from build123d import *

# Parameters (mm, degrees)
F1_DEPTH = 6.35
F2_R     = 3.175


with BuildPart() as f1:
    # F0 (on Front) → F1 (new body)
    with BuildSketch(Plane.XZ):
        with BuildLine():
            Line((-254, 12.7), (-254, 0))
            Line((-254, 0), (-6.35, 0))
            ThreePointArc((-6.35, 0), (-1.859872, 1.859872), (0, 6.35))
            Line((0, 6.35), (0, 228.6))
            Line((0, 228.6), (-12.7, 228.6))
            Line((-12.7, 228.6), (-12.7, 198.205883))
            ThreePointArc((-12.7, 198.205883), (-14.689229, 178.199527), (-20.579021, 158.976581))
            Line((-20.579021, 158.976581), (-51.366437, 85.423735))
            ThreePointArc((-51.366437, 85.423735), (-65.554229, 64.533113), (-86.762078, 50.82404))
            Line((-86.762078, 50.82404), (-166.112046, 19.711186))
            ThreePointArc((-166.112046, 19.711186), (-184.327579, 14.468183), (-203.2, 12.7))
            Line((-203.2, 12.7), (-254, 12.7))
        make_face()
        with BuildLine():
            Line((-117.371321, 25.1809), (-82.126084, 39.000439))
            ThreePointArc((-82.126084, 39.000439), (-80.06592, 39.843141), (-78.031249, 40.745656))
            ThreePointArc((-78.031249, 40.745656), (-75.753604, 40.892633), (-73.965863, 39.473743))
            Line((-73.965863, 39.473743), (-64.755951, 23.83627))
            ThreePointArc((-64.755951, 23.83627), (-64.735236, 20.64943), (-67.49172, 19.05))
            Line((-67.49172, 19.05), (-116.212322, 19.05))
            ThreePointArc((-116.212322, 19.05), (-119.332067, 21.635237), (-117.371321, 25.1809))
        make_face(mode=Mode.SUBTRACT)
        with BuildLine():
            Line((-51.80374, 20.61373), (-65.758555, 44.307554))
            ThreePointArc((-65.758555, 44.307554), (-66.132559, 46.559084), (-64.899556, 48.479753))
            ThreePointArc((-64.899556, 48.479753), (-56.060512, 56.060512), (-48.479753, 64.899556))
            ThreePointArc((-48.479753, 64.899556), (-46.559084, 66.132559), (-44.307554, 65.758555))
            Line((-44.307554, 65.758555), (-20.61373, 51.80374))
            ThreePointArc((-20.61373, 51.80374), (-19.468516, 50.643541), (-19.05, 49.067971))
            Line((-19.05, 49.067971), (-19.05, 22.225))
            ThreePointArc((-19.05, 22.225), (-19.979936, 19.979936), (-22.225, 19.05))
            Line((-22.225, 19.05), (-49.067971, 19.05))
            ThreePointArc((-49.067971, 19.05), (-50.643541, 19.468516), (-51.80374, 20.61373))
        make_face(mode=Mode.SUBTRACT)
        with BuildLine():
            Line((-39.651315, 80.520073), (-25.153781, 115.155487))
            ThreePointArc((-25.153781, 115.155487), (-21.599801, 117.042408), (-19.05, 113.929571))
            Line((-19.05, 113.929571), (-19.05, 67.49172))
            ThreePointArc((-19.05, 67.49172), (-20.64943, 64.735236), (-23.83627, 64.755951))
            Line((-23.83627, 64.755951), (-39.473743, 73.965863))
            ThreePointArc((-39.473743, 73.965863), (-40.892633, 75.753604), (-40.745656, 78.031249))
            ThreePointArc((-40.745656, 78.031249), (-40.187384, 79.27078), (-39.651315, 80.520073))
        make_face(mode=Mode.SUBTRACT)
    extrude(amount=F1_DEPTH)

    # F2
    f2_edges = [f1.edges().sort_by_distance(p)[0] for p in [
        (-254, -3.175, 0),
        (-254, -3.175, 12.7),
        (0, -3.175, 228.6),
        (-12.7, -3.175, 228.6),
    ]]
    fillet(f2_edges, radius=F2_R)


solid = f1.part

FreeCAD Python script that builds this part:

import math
import FreeCAD as App
import Part
import Sketcher

V = App.Vector
Q = App.Units.Quantity


def edges_at(feature, points):
    """Names of the edges that pass closest to the given points."""
    edges = feature.Shape.Edges
    near = lambda p: min(range(len(edges)), key=lambda i: edges[i].distToShape(Part.Vertex(*p))[0])
    return sorted({f"Edge{near(p) + 1}" for p in points})

doc = App.newDocument("Part")
body = doc.addObject("PartDesign::Body", "Body")

sketch1 = doc.addObject("Sketcher::SketchObject", "Sketch")
body.addObject(sketch1)
sketch1.AttachmentSupport = (doc.XZ_Plane, [""])
sketch1.MapMode = "FlatFace"
sketch1.addGeometry(Part.LineSegment(V(-254, 12.7, 0), V(-254, 0, 0)), False)
sketch1.addGeometry(Part.LineSegment(V(-254, 0, 0), V(-6.35, 0, 0)), False)
sketch1.addGeometry(Part.ArcOfCircle(Part.Circle(V(-6.35, 6.35, 0), V(0, 0, 1), 6.35), math.radians(-89.999998), math.radians(-0.000002)), False)
sketch1.addGeometry(Part.LineSegment(V(0, 6.35, 0), V(0, 228.6, 0)), False)
sketch1.addGeometry(Part.LineSegment(V(0, 228.6, 0), V(-12.7, 228.6, 0)), False)
sketch1.addGeometry(Part.LineSegment(V(-12.7, 228.6, 0), V(-12.7, 198.205883, 0)), False)
sketch1.addGeometry(Part.ArcOfCircle(Part.Circle(V(-114.30001, 198.205885, 0), V(0, 0, 1), 101.60001), math.radians(-22.712988), math.radians(-0.000001)), False)
sketch1.addGeometry(Part.LineSegment(V(-20.579021, 158.976581, 0), V(-51.366437, 85.423735, 0)), False)
sketch1.addGeometry(Part.ArcOfCircle(Part.Circle(V(-109.94205, 109.94205, 0), V(0, 0, 1), 63.500001), math.radians(-68.590022), math.radians(-22.71299)), False)
sketch1.addGeometry(Part.LineSegment(V(-86.762078, 50.82404, 0), V(-166.112046, 19.711186, 0)), False)
sketch1.addGeometry(Part.ArcOfCircle(Part.Circle(V(-203.200003, 114.30002, 0), V(0, 0, 1), 101.60002), math.radians(-89.999998), math.radians(-68.590025)), False)
sketch1.addGeometry(Part.LineSegment(V(-203.2, 12.7, 0), V(-254, 12.7, 0)), False)
sketch1.addGeometry(Part.ArcOfCircle(Part.Circle(V(-116.212323, 22.225, 0), V(0, 0, 1), 3.175), math.radians(111.40997), math.radians(270.000017)), False)
sketch1.addGeometry(Part.LineSegment(V(-117.371321, 25.1809, 0), V(-82.126084, 39.000439, 0)), False)
sketch1.addGeometry(Part.ArcOfCircle(Part.Circle(V(-109.941822, 109.941523, 0), V(0, 0, 1), 76.199427), math.radians(-68.590037), math.radians(-65.242597)), False)
sketch1.addGeometry(Part.ArcOfCircle(Part.Circle(V(-76.701632, 37.862474, 0), V(0, 0, 1), 3.174999), math.radians(30.49654), math.radians(114.757412)), False)
sketch1.addGeometry(Part.LineSegment(V(-73.965863, 39.473743, 0), V(-64.755951, 23.83627, 0)), False)
sketch1.addGeometry(Part.ArcOfCircle(Part.Circle(V(-67.49172, 22.225, 0), V(0, 0, 1), 3.175), math.radians(-90.000003), math.radians(30.496568)), False)
sketch1.addGeometry(Part.LineSegment(V(-67.49172, 19.05, 0), V(-116.212322, 19.05, 0)), False)
sketch1.addGeometry(Part.ArcOfCircle(Part.Circle(V(-49.067971, 22.224999, 0), V(0, 0, 1), 3.174999), math.radians(-149.503452), math.radians(-89.999996)), False)
sketch1.addGeometry(Part.LineSegment(V(-51.80374, 20.61373, 0), V(-65.758555, 44.307554, 0)), False)
sketch1.addGeometry(Part.ArcOfCircle(Part.Circle(V(-63.022785, 45.918824, 0), V(0, 0, 1), 3.175001), math.radians(126.235741), math.radians(210.496547)), False)
sketch1.addGeometry(Part.ArcOfCircle(Part.Circle(V(-109.942028, 109.942028, 0), V(0, 0, 1), 76.19997), math.radians(-53.76427), math.radians(-36.23573)), False)
sketch1.addGeometry(Part.ArcOfCircle(Part.Circle(V(-45.918824, 63.022785, 0), V(0, 0, 1), 3.175001), math.radians(59.503453), math.radians(143.764259)), False)
sketch1.addGeometry(Part.LineSegment(V(-44.307554, 65.758555, 0), V(-20.61373, 51.80374, 0)), False)
sketch1.addGeometry(Part.ArcOfCircle(Part.Circle(V(-22.224999, 49.067971, 0), V(0, 0, 1), 3.174999), math.radians(-0.000004), math.radians(59.503452)), False)
sketch1.addGeometry(Part.LineSegment(V(-19.05, 49.067971, 0), V(-19.05, 22.225, 0)), False)
sketch1.addGeometry(Part.ArcOfCircle(Part.Circle(V(-22.225, 22.225, 0), V(0, 0, 1), 3.175), math.radians(-89.999998), math.radians(-0.000002)), False)
sketch1.addGeometry(Part.LineSegment(V(-22.225, 19.05, 0), V(-49.067971, 19.05, 0)), False)
sketch1.addGeometry(Part.ArcOfCircle(Part.Circle(V(-109.939335, 109.940855, 0), V(0, 0, 1), 76.197036), math.radians(-24.757432), math.radians(-22.712949)), False)
sketch1.addGeometry(Part.LineSegment(V(-39.651315, 80.520073, 0), V(-25.153781, 115.155487, 0)), False)
sketch1.addGeometry(Part.ArcOfCircle(Part.Circle(V(-22.225, 113.929571, 0), V(0, 0, 1), 3.175), math.radians(-0.000006), math.radians(157.287012)), False)
sketch1.addGeometry(Part.LineSegment(V(-19.05, 113.929571, 0), V(-19.05, 67.49172, 0)), False)
sketch1.addGeometry(Part.ArcOfCircle(Part.Circle(V(-22.225, 67.49172, 0), V(0, 0, 1), 3.175), math.radians(-120.496568), math.radians(0.000003)), False)
sketch1.addGeometry(Part.LineSegment(V(-23.83627, 64.755951, 0), V(-39.473743, 73.965863, 0)), False)
sketch1.addGeometry(Part.ArcOfCircle(Part.Circle(V(-37.862474, 76.701632, 0), V(0, 0, 1), 3.174999), math.radians(155.242588), math.radians(239.50346)), False)
sketch1.addConstraint(Sketcher.Constraint("Coincident", 0, 2, 1, 1))
sketch1.addConstraint(Sketcher.Constraint("Coincident", 1, 2, 2, 1))
sketch1.addConstraint(Sketcher.Constraint("Coincident", 2, 2, 3, 1))
sketch1.addConstraint(Sketcher.Constraint("Coincident", 3, 2, 4, 1))
sketch1.addConstraint(Sketcher.Constraint("Coincident", 4, 2, 5, 1))
sketch1.addConstraint(Sketcher.Constraint("Coincident", 5, 2, 6, 2))
sketch1.addConstraint(Sketcher.Constraint("Coincident", 6, 1, 7, 1))
sketch1.addConstraint(Sketcher.Constraint("Coincident", 7, 2, 8, 2))
sketch1.addConstraint(Sketcher.Constraint("Coincident", 8, 1, 9, 1))
sketch1.addConstraint(Sketcher.Constraint("Coincident", 9, 2, 10, 2))
sketch1.addConstraint(Sketcher.Constraint("Coincident", 10, 1, 11, 1))
sketch1.addConstraint(Sketcher.Constraint("Coincident", 11, 2, 0, 1))
sketch1.addConstraint(Sketcher.Constraint("Coincident", 12, 1, 13, 1))
sketch1.addConstraint(Sketcher.Constraint("Coincident", 13, 2, 14, 1))
sketch1.addConstraint(Sketcher.Constraint("Coincident", 14, 2, 15, 2))
sketch1.addConstraint(Sketcher.Constraint("Coincident", 15, 1, 16, 1))
sketch1.addConstraint(Sketcher.Constraint("Coincident", 16, 2, 17, 2))
sketch1.addConstraint(Sketcher.Constraint("Coincident", 17, 1, 18, 1))
sketch1.addConstraint(Sketcher.Constraint("Coincident", 18, 2, 12, 2))
sketch1.addConstraint(Sketcher.Constraint("Coincident", 19, 1, 20, 1))
sketch1.addConstraint(Sketcher.Constraint("Coincident", 20, 2, 21, 2))
sketch1.addConstraint(Sketcher.Constraint("Coincident", 21, 1, 22, 1))
sketch1.addConstraint(Sketcher.Constraint("Coincident", 22, 2, 23, 2))
sketch1.addConstraint(Sketcher.Constraint("Coincident", 23, 1, 24, 1))
sketch1.addConstraint(Sketcher.Constraint("Coincident", 24, 2, 25, 2))
sketch1.addConstraint(Sketcher.Constraint("Coincident", 25, 1, 26, 1))
sketch1.addConstraint(Sketcher.Constraint("Coincident", 26, 2, 27, 2))
sketch1.addConstraint(Sketcher.Constraint("Coincident", 27, 1, 28, 1))
sketch1.addConstraint(Sketcher.Constraint("Coincident", 28, 2, 19, 2))
sketch1.addConstraint(Sketcher.Constraint("Coincident", 29, 2, 30, 1))
sketch1.addConstraint(Sketcher.Constraint("Coincident", 30, 2, 31, 2))
sketch1.addConstraint(Sketcher.Constraint("Coincident", 31, 1, 32, 1))
sketch1.addConstraint(Sketcher.Constraint("Coincident", 32, 2, 33, 2))
sketch1.addConstraint(Sketcher.Constraint("Coincident", 33, 1, 34, 1))
sketch1.addConstraint(Sketcher.Constraint("Coincident", 34, 2, 35, 2))
sketch1.addConstraint(Sketcher.Constraint("Coincident", 35, 1, 29, 1))
sketch1.addConstraint(Sketcher.Constraint("Vertical", 0))
sketch1.addConstraint(Sketcher.Constraint("Horizontal", 1))
sketch1.addConstraint(Sketcher.Constraint("Vertical", 3))
sketch1.addConstraint(Sketcher.Constraint("Horizontal", 4))
sketch1.addConstraint(Sketcher.Constraint("Vertical", 5))
sketch1.addConstraint(Sketcher.Constraint("Horizontal", 11))
sketch1.addConstraint(Sketcher.Constraint("Horizontal", 18))
sketch1.addConstraint(Sketcher.Constraint("Vertical", 26))
sketch1.addConstraint(Sketcher.Constraint("Horizontal", 28))
sketch1.addConstraint(Sketcher.Constraint("Vertical", 32))
sketch1.addConstraint(Sketcher.Constraint("PointOnObject", 0, 2, -1))
sketch1.addConstraint(Sketcher.Constraint("PointOnObject", 2, 2, -2))
sketch1.addConstraint(Sketcher.Constraint("Radius", 8, Q("2.5 in")))
sketch1.addConstraint(Sketcher.Constraint("DistanceX", 11, 2, 11, 1, Q("2 in")))
sketch1.addConstraint(Sketcher.Constraint("Radius", 2, Q("0.25 in")))
sketch1.addConstraint(Sketcher.Constraint("DistanceX", 4, 2, 4, 1, Q("0.5 in")))
sketch1.addConstraint(Sketcher.Constraint("DistanceY", 0, 2, 0, 1, Q("0.5 in")))
sketch1.addConstraint(Sketcher.Constraint("DistanceX", 10, 3, -1, 1, Q("8.0000001 in")))
sketch1.addConstraint(Sketcher.Constraint("DistanceX", 0, 2, -1, 1, Q("10 in")))
sketch1.addConstraint(Sketcher.Constraint("DistanceY", -1, 1, 3, 2, Q("9 in")))
sketch1.addConstraint(Sketcher.Constraint("Radius", 12, Q("0.125 in")))
sketch1.addConstraint(Sketcher.Constraint("Radius", 15, Q("0.125 in")))
sketch1.addConstraint(Sketcher.Constraint("Radius", 17, Q("0.125 in")))
sketch1.addConstraint(Sketcher.Constraint("Radius", 19, Q("0.125 in")))
sketch1.addConstraint(Sketcher.Constraint("Radius", 21, Q("0.125 in")))
sketch1.addConstraint(Sketcher.Constraint("Radius", 23, Q("0.125 in")))
sketch1.addConstraint(Sketcher.Constraint("Radius", 25, Q("0.125 in")))
sketch1.addConstraint(Sketcher.Constraint("Radius", 27, Q("0.125 in")))
sketch1.addConstraint(Sketcher.Constraint("Radius", 31, Q("0.125 in")))
sketch1.addConstraint(Sketcher.Constraint("Radius", 33, Q("0.125 in")))
sketch1.addConstraint(Sketcher.Constraint("Radius", 35, Q("0.125 in")))
sketch1.addConstraint(Sketcher.Constraint("DistanceX", 1, 1, 1, 2, Q("9.75 in")))
sketch1.addConstraint(Sketcher.Constraint("DistanceY", 3, 1, 3, 2, Q("8.75 in")))
sketch1.addConstraint(Sketcher.Constraint("DistanceX", 26, 2, 2, 3, Q("0.5 in")))
sketch1.addConstraint(Sketcher.Constraint("DistanceY", 2, 3, 27, 1, Q("0.5 in")))
sketch1.addConstraint(Sketcher.Constraint("DistanceY", -1, 1, 17, 1, Q("0.75 in")))
sketch1.addConstraint(Sketcher.Constraint("DistanceX", 31, 1, -1, 1, Q("0.75 in")))
sketch1.addConstraint(Sketcher.Constraint("DistanceY", -1, 1, 26, 2, Q("0.875 in")))
sketch1.addConstraint(Sketcher.Constraint("DistanceX", 27, 1, -1, 1, Q("0.875 in")))
sketch1.addConstraint(Sketcher.Constraint("Radius", 6, 101.60001))
sketch1.addConstraint(Sketcher.Constraint("Radius", 10, 101.60002))
sketch1.addConstraint(Sketcher.Constraint("Radius", 22, 76.19997))
sketch1.addConstraint(Sketcher.Constraint("Radius", 14, 76.199427))
sketch1.addConstraint(Sketcher.Constraint("Radius", 29, 76.197036))
sketch1.addConstraint(Sketcher.Constraint("DistanceX", 28, 2, 28, 1, 26.842971))
sketch1.addConstraint(Sketcher.Constraint("DistanceY", 26, 2, 26, 1, 26.842971))
sketch1.addConstraint(Sketcher.Constraint("DistanceY", 32, 2, 32, 1, 46.437851))
sketch1.addConstraint(Sketcher.Constraint("DistanceY", -1, 1, 12, 1, 25.1809))
sketch1.addConstraint(Sketcher.Constraint("DistanceX", 12, 3, 14, 3, 6.270501))
sketch1.addConstraint(Sketcher.Constraint("DistanceY", 25, 3, 31, 3, 64.8616))
sketch1.addConstraint(Sketcher.Constraint("DistanceX", 12, 1, 17, 3, 49.879601))
sketch1.addConstraint(Sketcher.Constraint("DistanceY", 13, 2, 8, 1, 11.823601))
sketch1.addConstraint(Sketcher.Constraint("DistanceX", 13, 2, 21, 3, 19.103299))
sketch1.addConstraint(Sketcher.Constraint("DistanceX", 12, 1, 18, 2, 1.158999))
sketch1.addConstraint(Sketcher.Constraint("DistanceY", 14, 2, 20, 2, 3.561898))
sketch1.addConstraint(Sketcher.Constraint("DistanceX", 20, 2, 21, 1, 0.858999))
sketch1.addConstraint(Sketcher.Constraint("DistanceY", 20, 2, 21, 1, 4.172199))
sketch1.addConstraint(Sketcher.Constraint("DistanceX", 22, 2, 23, 1, 4.172199))
sketch1.addConstraint(Sketcher.Constraint("DistanceY", 22, 2, 23, 1, 0.858999))
sketch1.addConstraint(Sketcher.Constraint("DistanceY", 29, 2, 31, 1, 33.409498))
sketch1.addConstraint(Sketcher.Constraint("Distance", 9, 85.231609))
sketch1.addConstraint(Sketcher.Constraint("DistanceX", 18, 2, 18, 1, 48.720602))
sketch1.addConstraint(Sketcher.Constraint("DistanceY", 5, 2, 5, 1, 30.394117))
sketch1.addConstraint(Sketcher.Constraint("DistanceX", 8, 3, -1, 1, 109.94205))
sketch1.addConstraint(Sketcher.Constraint("DistanceY", -1, 1, 8, 3, 109.94205))
sketch1.addConstraint(Sketcher.Constraint("DistanceX", 15, 3, -1, 1, 76.701632))
sketch1.addConstraint(Sketcher.Constraint("DistanceX", 17, 3, -1, 1, 67.49172))
sketch1.addConstraint(Sketcher.Constraint("DistanceX", 19, 3, -1, 1, 49.067971))
sketch1.addConstraint(Sketcher.Constraint("DistanceY", -1, 1, 25, 3, 49.067971))
sketch1.addConstraint(Sketcher.Constraint("DistanceY", -1, 1, 33, 3, 67.49172))
sketch1.addConstraint(Sketcher.Constraint("DistanceY", -1, 1, 35, 3, 76.701632))
sketch1.addConstraint(Sketcher.Constraint("DistanceX", 6, 1, -1, 1, 20.579021))
sketch1.addConstraint(Sketcher.Constraint("DistanceY", -1, 1, 6, 1, 158.976581))
sketch1.addConstraint(Sketcher.Constraint("DistanceX", 8, 1, -1, 1, 86.762078))
sketch1.addConstraint(Sketcher.Constraint("DistanceX", 14, 2, -1, 1, 78.031249))
sketch1.addConstraint(Sketcher.Constraint("DistanceX", 16, 2, -1, 1, 64.755951))
sketch1.addConstraint(Sketcher.Constraint("DistanceX", 19, 1, -1, 1, 51.80374))
sketch1.addConstraint(Sketcher.Constraint("DistanceX", 24, 2, -1, 1, 20.61373))
sketch1.addConstraint(Sketcher.Constraint("DistanceX", 30, 2, -1, 1, 25.153781))
sketch1.addConstraint(Sketcher.Constraint("DistanceY", -1, 1, 31, 1, 113.929571))
sketch1.addConstraint(Sketcher.Constraint("DistanceX", 33, 1, -1, 1, 23.83627))
sketch1.addConstraint(Sketcher.Constraint("DistanceY", -1, 1, 35, 1, 78.031249))
sketch1.addConstraint(Sketcher.Constraint("DistanceY", 14, 3, 6, 3, 88.264362))
sketch1.addConstraint(Sketcher.Constraint("DistanceX", 21, 3, 23, 3, 17.103961))
sketch1.addConstraint(Sketcher.Constraint("DistanceY", 21, 3, 23, 3, 17.103961))
sketch1.addConstraint(Sketcher.Constraint("DistanceX", 29, 3, 23, 3, 64.020512))
sketch1.addConstraint(Sketcher.Constraint("DistanceY", 23, 3, 29, 3, 46.91807))
sketch1.addConstraint(Sketcher.Constraint("DistanceY", 23, 3, 7, 2, 22.40095))
sketch1.addConstraint(Sketcher.Constraint("DistanceX", 15, 3, 15, 1, 2.735769))
sketch1.addConstraint(Sketcher.Constraint("DistanceX", 34, 2, 35, 3, 1.611269))
pad1 = doc.addObject("PartDesign::Pad", "Pad")
body.addObject(pad1)
pad1.Profile = sketch1
pad1.Length = Q("0.25 in")
doc.recompute()

fillet = doc.addObject("PartDesign::Fillet", "Fillet")
body.addObject(fillet)
fillet.Base = (pad1, edges_at(pad1, [
    (-254, -3.175, 0),
    (-254, -3.175, 12.7),
    (0, -3.175, 228.6),
    (-12.7, -3.175, 228.6),
]))
fillet.Radius = Q("0.125 in")

doc.recompute()
